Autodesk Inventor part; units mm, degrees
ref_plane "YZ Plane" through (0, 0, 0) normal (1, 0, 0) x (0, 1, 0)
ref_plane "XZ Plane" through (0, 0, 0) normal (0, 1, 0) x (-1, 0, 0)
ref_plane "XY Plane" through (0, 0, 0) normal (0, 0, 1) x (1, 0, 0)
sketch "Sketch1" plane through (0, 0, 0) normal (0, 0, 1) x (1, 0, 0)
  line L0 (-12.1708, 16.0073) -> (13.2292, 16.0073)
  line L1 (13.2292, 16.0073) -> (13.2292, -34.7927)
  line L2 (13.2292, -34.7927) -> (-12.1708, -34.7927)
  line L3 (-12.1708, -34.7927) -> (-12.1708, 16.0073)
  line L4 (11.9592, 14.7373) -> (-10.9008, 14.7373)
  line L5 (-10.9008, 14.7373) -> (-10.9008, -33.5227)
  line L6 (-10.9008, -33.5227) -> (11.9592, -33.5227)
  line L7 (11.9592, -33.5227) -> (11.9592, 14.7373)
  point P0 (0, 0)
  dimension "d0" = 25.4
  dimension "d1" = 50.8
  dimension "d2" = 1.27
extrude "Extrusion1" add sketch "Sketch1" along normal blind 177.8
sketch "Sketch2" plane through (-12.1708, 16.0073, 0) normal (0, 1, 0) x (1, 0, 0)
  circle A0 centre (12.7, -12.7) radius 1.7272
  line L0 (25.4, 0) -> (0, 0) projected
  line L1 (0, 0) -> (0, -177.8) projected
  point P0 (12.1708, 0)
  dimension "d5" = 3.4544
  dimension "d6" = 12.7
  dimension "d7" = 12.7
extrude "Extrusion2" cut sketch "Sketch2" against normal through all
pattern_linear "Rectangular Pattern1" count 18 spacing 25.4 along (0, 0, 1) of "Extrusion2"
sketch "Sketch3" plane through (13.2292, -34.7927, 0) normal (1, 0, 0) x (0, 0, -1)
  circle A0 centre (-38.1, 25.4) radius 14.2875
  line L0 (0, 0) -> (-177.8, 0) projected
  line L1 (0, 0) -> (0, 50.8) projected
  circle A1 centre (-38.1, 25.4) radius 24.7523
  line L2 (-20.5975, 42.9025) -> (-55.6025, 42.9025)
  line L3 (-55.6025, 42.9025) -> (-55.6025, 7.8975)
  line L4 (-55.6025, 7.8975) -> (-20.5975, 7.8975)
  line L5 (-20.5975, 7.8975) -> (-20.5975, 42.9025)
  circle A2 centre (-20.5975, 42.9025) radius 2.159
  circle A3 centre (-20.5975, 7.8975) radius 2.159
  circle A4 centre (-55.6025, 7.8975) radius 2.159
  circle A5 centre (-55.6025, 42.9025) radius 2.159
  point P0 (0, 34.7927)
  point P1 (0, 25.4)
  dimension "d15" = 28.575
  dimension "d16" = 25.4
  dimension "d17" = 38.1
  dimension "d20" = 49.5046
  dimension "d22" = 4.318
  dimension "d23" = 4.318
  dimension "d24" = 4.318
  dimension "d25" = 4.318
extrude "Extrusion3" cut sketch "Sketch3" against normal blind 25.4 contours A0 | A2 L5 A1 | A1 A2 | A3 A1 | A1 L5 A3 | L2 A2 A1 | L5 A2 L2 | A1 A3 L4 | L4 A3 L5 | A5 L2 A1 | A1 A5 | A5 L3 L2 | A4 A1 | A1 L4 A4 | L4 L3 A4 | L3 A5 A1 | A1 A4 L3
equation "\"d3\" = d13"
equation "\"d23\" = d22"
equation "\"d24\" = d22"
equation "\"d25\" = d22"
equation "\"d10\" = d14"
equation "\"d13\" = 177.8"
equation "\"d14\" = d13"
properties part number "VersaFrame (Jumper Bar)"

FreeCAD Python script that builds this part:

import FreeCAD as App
import Part
import Sketcher
Q = App.Units.Quantity


def add_polygon(sketch, points):
    """Adds a closed chain of lines whose ends are joined by coincident constraints."""
    first, n = sketch.GeometryCount, len(points)
    for a, b in zip(points, points[1:] + points[:1]):
        sketch.addGeometry(Part.LineSegment(App.Vector(*a, 0), App.Vector(*b, 0)), False)
    for i in range(n):
        sketch.addConstraint(Sketcher.Constraint("Coincident", first + i, 2, first + (i + 1) % n, 1))

doc = App.newDocument("Part")
body = doc.addObject("PartDesign::Body", "Body")

sketch1 = doc.addObject("Sketcher::SketchObject", "Sketch")
body.addObject(sketch1)
sketch1.AttachmentSupport = (doc.XY_Plane, [""])
sketch1.MapMode = "FlatFace"
add_polygon(sketch1, [(13.2292, 16.0073), (-12.1708, 16.0073), (-12.1708, -34.7927), (13.2292, -34.7927)])
add_polygon(sketch1, [(-10.9008, 14.7373), (11.9592, 14.7373), (11.9592, -33.5227), (-10.9008, -33.5227)])
sketch1.addConstraint([
    Sketcher.Constraint("Horizontal", 0),
    Sketcher.Constraint("Vertical", 1),
    Sketcher.Constraint("Horizontal", 2),
    Sketcher.Constraint("Vertical", 3),
    Sketcher.Constraint("Horizontal", 4),
    Sketcher.Constraint("Vertical", 5),
    Sketcher.Constraint("Horizontal", 6),
    Sketcher.Constraint("Vertical", 7),
    Sketcher.Constraint("DistanceX", 0, 2, 0, 1, Q("1 in")),
    Sketcher.Constraint("DistanceY", 1, 2, 1, 1, Q("2 in")),
    Sketcher.Constraint("DistanceX", 4, 2, 3, 2, Q("0.05 in")),
    Sketcher.Constraint("DistanceY", 4, 2, 3, 2, Q("0.05 in")),
    Sketcher.Constraint("DistanceY", 2, 2, 5, 2, Q("0.05 in")),
    Sketcher.Constraint("DistanceX", 1, 2, 6, 2, Q("0.05 in")),
    Sketcher.Constraint("DistanceY", -1, 1, 0, 2, Q("0.6302 in")),
    Sketcher.Constraint("DistanceX", 0, 2, -1, 1, Q("12.1708 mm")),
])
pad1 = doc.addObject("PartDesign::Pad", "Pad")
body.addObject(pad1)
pad1.Profile = sketch1
pad1.Length = Q("7 in")

sketch2 = doc.addObject("Sketcher::SketchObject", "Sketch001")
body.addObject(sketch2)
sketch2.AttachmentSupport = (doc.XZ_Plane, [""])
sketch2.MapMode = "FlatFace"
sketch2.AttachmentOffset = App.Placement(App.Vector(0, 0, -0.6302087 * 25.4), App.Rotation())
sketch2.addGeometry(Part.Circle(App.Vector(0.5292, 12.7, 0), App.Vector(0, 0, 1), 1.7272), False)
sketch2.addConstraint([
    Sketcher.Constraint("Diameter", 0, Q("0.136 in")),
    Sketcher.Constraint("DistanceY", -1, 1, 0, 3, Q("0.5 in")),
    Sketcher.Constraint("DistanceX", -1, 1, 0, 3, Q("0.5292 mm")),
])
pocket1 = doc.addObject("PartDesign::Pocket", "Pocket")
body.addObject(pocket1)
pocket1.Profile = sketch2
pocket1.Type = "ThroughAll"
pocket1.Reversed = True
doc.recompute()

linearpattern = doc.addObject("PartDesign::LinearPattern", "LinearPattern")
body.addObject(linearpattern)
linearpattern.Originals = [pocket1]
linearpattern.Direction = (doc.Z_Axis, [""])
linearpattern.Mode = "offset"
linearpattern.Offset = Q("1 in")
linearpattern.Occurrences = 18
body.Tip = linearpattern

sketch3 = doc.addObject("Sketcher::SketchObject", "Sketch002")
body.addObject(sketch3)
sketch3.AttachmentSupport = (doc.YZ_Plane, [""])
sketch3.MapMode = "FlatFace"
sketch3.AttachmentOffset = App.Placement(App.Vector(0, 0, 13.2292), App.Rotation())
sketch3.addGeometry([
    Part.Circle(App.Vector(-9.3927, 38.1, 0), App.Vector(0, 0, 1), 14.2875),
    Part.Circle(App.Vector(8.1098, 20.5975, 0), App.Vector(0, 0, 1), 2.159),
    Part.Circle(App.Vector(-26.8952, 20.5975, 0), App.Vector(0, 0, 1), 2.159),
    Part.Circle(App.Vector(8.1098, 55.6025, 0), App.Vector(0, 0, 1), 2.159),
    Part.Circle(App.Vector(-26.8952, 55.6025, 0), App.Vector(0, 0, 1), 2.159),
], False)
sketch3.addConstraint([
    Sketcher.Constraint("Equal", 1, 2),
    Sketcher.Constraint("Equal", 2, 3),
    Sketcher.Constraint("Equal", 3, 4),
    Sketcher.Constraint("Horizontal", 1, 3, 2, 3),
    Sketcher.Constraint("Horizontal", 3, 3, 4, 3),
    Sketcher.Constraint("Vertical", 1, 3, 3, 3),
    Sketcher.Constraint("Vertical", 2, 3, 4, 3),
    Sketcher.Constraint("Diameter", 1, Q("0.17 in")),
    Sketcher.Constraint("Diameter", 0, Q("1.125 in")),
    Sketcher.Constraint("DistanceY", -1, 1, 0, 3, Q("1.5 in")),
    Sketcher.Constraint("DistanceX", 0, 3, -1, 1, Q("0.3698 in")),
    Sketcher.Constraint("DistanceX", -1, 1, 1, 3, Q("8.1098 mm")),
    Sketcher.Constraint("DistanceY", -1, 1, 1, 3, Q("20.5975 mm")),
    Sketcher.Constraint("DistanceX", 2, 3, -1, 1, Q("26.8952 mm")),
    Sketcher.Constraint("DistanceY", -1, 1, 3, 3, Q("55.6025 mm")),
])
pocket2 = doc.addObject("PartDesign::Pocket", "Pocket001")
body.addObject(pocket2)
pocket2.Profile = sketch3
pocket2.Length = Q("1 in")

doc.recompute()
